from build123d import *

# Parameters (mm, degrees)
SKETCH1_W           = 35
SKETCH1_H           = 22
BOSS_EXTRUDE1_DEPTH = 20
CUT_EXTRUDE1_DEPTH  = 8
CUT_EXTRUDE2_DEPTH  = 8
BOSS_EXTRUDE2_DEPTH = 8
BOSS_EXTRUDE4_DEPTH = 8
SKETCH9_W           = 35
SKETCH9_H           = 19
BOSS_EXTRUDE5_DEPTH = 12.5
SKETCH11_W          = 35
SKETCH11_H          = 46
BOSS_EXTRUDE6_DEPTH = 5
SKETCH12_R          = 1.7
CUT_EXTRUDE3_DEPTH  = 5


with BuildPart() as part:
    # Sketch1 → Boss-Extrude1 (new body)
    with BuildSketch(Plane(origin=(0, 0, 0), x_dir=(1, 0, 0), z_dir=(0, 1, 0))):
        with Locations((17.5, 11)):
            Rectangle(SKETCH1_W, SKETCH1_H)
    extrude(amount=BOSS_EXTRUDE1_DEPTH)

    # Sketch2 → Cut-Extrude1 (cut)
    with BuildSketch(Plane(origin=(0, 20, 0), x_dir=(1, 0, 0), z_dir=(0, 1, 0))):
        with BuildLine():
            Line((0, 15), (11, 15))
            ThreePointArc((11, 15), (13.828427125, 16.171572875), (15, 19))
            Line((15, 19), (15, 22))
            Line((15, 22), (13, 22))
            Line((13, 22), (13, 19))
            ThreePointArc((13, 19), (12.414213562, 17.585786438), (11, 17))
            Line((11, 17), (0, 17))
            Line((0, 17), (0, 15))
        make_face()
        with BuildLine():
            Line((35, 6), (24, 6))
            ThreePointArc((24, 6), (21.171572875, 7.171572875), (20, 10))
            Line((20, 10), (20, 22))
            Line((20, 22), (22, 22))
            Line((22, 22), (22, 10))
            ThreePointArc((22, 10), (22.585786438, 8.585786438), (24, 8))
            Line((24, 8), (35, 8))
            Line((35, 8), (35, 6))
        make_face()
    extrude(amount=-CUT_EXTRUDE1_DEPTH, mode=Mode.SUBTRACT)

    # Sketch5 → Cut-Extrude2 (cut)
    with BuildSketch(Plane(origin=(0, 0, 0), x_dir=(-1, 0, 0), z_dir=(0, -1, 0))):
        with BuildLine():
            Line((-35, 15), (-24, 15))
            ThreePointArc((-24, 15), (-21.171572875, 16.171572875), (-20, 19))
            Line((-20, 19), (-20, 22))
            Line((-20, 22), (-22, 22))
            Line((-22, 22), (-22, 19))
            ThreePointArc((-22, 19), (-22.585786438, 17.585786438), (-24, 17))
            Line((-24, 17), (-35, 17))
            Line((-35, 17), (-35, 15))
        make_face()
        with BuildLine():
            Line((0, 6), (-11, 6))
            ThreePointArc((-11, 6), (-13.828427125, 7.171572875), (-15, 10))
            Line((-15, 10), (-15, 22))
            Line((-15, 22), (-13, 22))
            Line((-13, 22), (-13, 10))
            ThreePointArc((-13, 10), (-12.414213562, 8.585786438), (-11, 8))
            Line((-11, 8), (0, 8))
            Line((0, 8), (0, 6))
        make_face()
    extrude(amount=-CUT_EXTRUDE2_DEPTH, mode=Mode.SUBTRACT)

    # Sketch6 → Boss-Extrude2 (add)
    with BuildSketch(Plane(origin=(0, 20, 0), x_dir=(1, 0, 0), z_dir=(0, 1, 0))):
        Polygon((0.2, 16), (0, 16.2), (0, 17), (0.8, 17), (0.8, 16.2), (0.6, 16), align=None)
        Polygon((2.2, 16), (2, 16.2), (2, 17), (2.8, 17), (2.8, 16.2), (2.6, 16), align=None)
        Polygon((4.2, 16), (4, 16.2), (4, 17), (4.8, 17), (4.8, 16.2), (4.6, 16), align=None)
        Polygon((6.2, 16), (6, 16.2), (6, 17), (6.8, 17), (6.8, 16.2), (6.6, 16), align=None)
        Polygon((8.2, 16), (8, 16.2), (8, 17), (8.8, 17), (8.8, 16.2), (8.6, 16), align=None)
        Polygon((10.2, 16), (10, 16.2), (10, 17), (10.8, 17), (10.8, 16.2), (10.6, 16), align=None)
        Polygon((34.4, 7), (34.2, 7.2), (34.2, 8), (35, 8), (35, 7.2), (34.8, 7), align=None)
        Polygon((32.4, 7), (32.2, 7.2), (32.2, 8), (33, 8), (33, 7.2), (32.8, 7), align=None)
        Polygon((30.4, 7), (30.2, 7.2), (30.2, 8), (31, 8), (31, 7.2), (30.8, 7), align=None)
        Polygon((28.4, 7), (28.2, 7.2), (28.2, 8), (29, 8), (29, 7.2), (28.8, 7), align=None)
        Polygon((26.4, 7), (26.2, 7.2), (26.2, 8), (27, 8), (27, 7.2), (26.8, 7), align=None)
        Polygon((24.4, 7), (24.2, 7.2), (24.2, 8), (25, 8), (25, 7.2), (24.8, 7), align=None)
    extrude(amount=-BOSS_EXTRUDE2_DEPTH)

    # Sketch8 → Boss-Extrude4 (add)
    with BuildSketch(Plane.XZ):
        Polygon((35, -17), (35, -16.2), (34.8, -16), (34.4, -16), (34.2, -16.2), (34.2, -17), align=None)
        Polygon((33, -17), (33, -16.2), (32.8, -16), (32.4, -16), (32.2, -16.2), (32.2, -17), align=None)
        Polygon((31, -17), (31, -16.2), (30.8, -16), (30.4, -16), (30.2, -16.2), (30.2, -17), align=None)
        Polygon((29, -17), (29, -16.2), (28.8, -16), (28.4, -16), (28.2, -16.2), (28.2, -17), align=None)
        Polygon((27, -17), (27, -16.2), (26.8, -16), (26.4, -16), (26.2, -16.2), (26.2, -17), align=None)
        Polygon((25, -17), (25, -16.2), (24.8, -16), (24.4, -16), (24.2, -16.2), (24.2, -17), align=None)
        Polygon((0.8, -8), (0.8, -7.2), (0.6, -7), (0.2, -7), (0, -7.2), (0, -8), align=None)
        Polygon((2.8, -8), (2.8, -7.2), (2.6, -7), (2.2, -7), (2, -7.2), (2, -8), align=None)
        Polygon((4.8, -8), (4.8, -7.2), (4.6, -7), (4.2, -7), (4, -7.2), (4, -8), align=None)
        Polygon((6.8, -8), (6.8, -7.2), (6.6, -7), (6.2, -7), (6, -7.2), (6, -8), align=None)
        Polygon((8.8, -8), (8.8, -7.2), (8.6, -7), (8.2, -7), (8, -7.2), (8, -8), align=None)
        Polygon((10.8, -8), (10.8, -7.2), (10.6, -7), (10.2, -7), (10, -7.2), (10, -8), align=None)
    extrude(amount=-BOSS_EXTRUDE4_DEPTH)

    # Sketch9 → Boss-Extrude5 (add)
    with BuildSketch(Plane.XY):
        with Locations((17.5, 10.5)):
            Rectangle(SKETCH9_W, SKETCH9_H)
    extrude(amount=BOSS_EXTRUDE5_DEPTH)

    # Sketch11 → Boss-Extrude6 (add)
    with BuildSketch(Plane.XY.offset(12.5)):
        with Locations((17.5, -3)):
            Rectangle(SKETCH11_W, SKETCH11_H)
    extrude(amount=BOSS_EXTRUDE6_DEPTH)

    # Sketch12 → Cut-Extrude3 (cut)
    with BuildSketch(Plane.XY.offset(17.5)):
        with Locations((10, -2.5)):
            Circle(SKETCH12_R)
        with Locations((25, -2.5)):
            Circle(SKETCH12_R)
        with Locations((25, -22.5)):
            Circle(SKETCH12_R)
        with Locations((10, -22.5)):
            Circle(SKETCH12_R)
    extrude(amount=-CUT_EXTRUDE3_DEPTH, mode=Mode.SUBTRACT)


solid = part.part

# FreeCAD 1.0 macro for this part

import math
import FreeCAD as App
import Part
import Sketcher

doc = App.newDocument("Part")
params = doc.addObject("Spreadsheet::Sheet", "Params")
for row, (alias, value) in enumerate([
    ("sketch1_width", "35 mm"),
    ("sketch1_height", "22 mm"),
    ("pad1_length", "20 mm"),
    ("sketch2_radius", "4 mm"),
    ("sketch2_radius2", "2 mm"),
    ("sketch2_width", "11 mm"),
    ("sketch2_height", "3 mm"),
    ("sketch2_height2", "12 mm"),
    ("pocket1_length", "8 mm"),
    ("sketch3_radius", "4 mm"),
    ("sketch3_radius2", "2 mm"),
    ("sketch3_width", "11 mm"),
    ("sketch3_height", "3 mm"),
    ("sketch3_height2", "12 mm"),
    ("pocket2_length", "8 mm"),
    ("sketch4_width", "0.4 mm"),
    ("sketch4_width2", "0.8 mm"),
    ("pad2_length", "8 mm"),
    ("sketch5_width", "0.4 mm"),
    ("sketch5_width2", "0.8 mm"),
    ("pad3_length", "8 mm"),
    ("sketch6_width", "35 mm"),
    ("sketch6_height", "19 mm"),
    ("pad4_length", "12.5 mm"),
    ("sketch7_width", "35 mm"),
    ("sketch7_height", "46 mm"),
    ("pad5_length", "5 mm"),
    ("sketch8_diameter", "3.4 mm"),
    ("pocket3_length", "5 mm"),
], start=1):
    params.set(f"A{row}", alias)
    params.set(f"B{row}", "=" + value)
    params.setAlias(f"B{row}", alias)

body = doc.addObject("PartDesign::Body", "Body")

# Sketch on XZ plane
sketch1 = body.newObject("Sketcher::SketchObject", "Sketch")
sketch1.AttachmentSupport = (doc.getObject("XZ_Plane"), [""])
sketch1.MapMode = "FlatFace"
sketch1.addGeometry([
    Part.LineSegment(App.Vector(0, -22, 0), App.Vector(0, 0, 0)),
    Part.LineSegment(App.Vector(0, 0, 0), App.Vector(35, 0, 0)),
    Part.LineSegment(App.Vector(35, 0, 0), App.Vector(35, -22, 0)),
    Part.LineSegment(App.Vector(35, -22, 0), App.Vector(0, -22, 0)),
], False)
sketch1.addConstraint([
    Sketcher.Constraint("Coincident", 0, 2, 1, 1),
    Sketcher.Constraint("Coincident", 1, 2, 2, 1),
    Sketcher.Constraint("Coincident", 2, 2, 3, 1),
    Sketcher.Constraint("Coincident", 3, 2, 0, 1),
    Sketcher.Constraint("Vertical", 0),
    Sketcher.Constraint("Horizontal", 1),
    Sketcher.Constraint("Vertical", 2),
    Sketcher.Constraint("Horizontal", 3),
    Sketcher.Constraint("Coincident", 0, 2, -1, 1),
    Sketcher.Constraint("DistanceX", 1, 1, 1, 2, 35.0),
    Sketcher.Constraint("DistanceY", 0, 1, 0, 2, 22.0),
])
sketch1.setExpression("Constraints[9]", "Params.sketch1_width")
sketch1.setExpression("Constraints[10]", "Params.sketch1_height")
pad1 = body.newObject("PartDesign::Pad", "Pad")
pad1.Profile = sketch1
pad1.setExpression("Length", "Params.pad1_length")
pad1.Reversed = True

# Sketch on XZ plane
sketch2 = body.newObject("Sketcher::SketchObject", "Sketch001")
sketch2.AttachmentSupport = (doc.getObject("XZ_Plane"), [""])
sketch2.MapMode = "FlatFace"
sketch2.AttachmentOffset = App.Placement(App.Vector(0, 0, -20), App.Rotation())
sketch2.addGeometry([
    Part.LineSegment(App.Vector(0, -15, 0), App.Vector(11, -15, 0)),  # 0
    Part.ArcOfCircle(Part.Circle(App.Vector(11, -19, 0), App.Vector(0, 0, 1), 4), math.radians(0), math.radians(90)),  # 1
    Part.LineSegment(App.Vector(15, -19, 0), App.Vector(15, -22, 0)),  # 2
    Part.LineSegment(App.Vector(15, -22, 0), App.Vector(13, -22, 0)),  # 3
    Part.LineSegment(App.Vector(13, -22, 0), App.Vector(13, -19, 0)),  # 4
    Part.ArcOfCircle(Part.Circle(App.Vector(11, -19, 0), App.Vector(0, 0, 1), 2), math.radians(0), math.radians(90)),  # 5
    Part.LineSegment(App.Vector(11, -17, 0), App.Vector(0, -17, 0)),  # 6
    Part.LineSegment(App.Vector(0, -17, 0), App.Vector(0, -15, 0)),  # 7
    Part.LineSegment(App.Vector(24, -6, 0), App.Vector(35, -6, 0)),  # 8
    Part.LineSegment(App.Vector(35, -6, 0), App.Vector(35, -8, 0)),  # 9
    Part.LineSegment(App.Vector(35, -8, 0), App.Vector(24, -8, 0)),  # 10
    Part.ArcOfCircle(Part.Circle(App.Vector(24, -10, 0), App.Vector(0, 0, 1), 2), math.radians(90), math.radians(180)),  # 11
    Part.LineSegment(App.Vector(22, -10, 0), App.Vector(22, -22, 0)),  # 12
    Part.LineSegment(App.Vector(22, -22, 0), App.Vector(20, -22, 0)),  # 13
    Part.LineSegment(App.Vector(20, -22, 0), App.Vector(20, -10, 0)),  # 14
    Part.ArcOfCircle(Part.Circle(App.Vector(24, -10, 0), App.Vector(0, 0, 1), 4), math.radians(90), math.radians(180)),  # 15
], False)
sketch2.addConstraint([
    Sketcher.Constraint("Tangent", 0, 2, 1, 2),
    Sketcher.Constraint("Tangent", 1, 1, 2, 1),
    Sketcher.Constraint("Coincident", 2, 2, 3, 1),
    Sketcher.Constraint("Coincident", 3, 2, 4, 1),
    Sketcher.Constraint("Tangent", 4, 2, 5, 1),
    Sketcher.Constraint("Tangent", 5, 2, 6, 1),
    Sketcher.Constraint("Coincident", 6, 2, 7, 1),
    Sketcher.Constraint("Coincident", 7, 2, 0, 1),
    Sketcher.Constraint("Coincident", 8, 2, 9, 1),
    Sketcher.Constraint("Coincident", 9, 2, 10, 1),
    Sketcher.Constraint("Tangent", 10, 2, 11, 1),
    Sketcher.Constraint("Tangent", 11, 2, 12, 1),
    Sketcher.Constraint("Coincident", 12, 2, 13, 1),
    Sketcher.Constraint("Coincident", 13, 2, 14, 1),
    Sketcher.Constraint("Tangent", 14, 2, 15, 2),
    Sketcher.Constraint("Tangent", 15, 1, 8, 1),
    Sketcher.Constraint("Horizontal", 0),
    Sketcher.Constraint("Vertical", 2),
    Sketcher.Constraint("Horizontal", 3),
    Sketcher.Constraint("Vertical", 4),
    Sketcher.Constraint("Horizontal", 6),
    Sketcher.Constraint("Vertical", 7),
    Sketcher.Constraint("Horizontal", 8),
    Sketcher.Constraint("Vertical", 9),
    Sketcher.Constraint("Horizontal", 10),
    Sketcher.Constraint("Vertical", 12),
    Sketcher.Constraint("Horizontal", 13),
    Sketcher.Constraint("Vertical", 14),
    Sketcher.Constraint("Coincident", 5, 3, 1, 3),
    Sketcher.Constraint("Coincident", 15, 3, 11, 3),
    Sketcher.Constraint("Equal", 5, 11),
    Sketcher.Constraint("Equal", 1, 15),
    Sketcher.Constraint("PointOnObject", 6, 2, -2),
    Sketcher.Constraint("Horizontal", 3, 2, 12, 2),
    Sketcher.Constraint("Equal", 6, 8),
    Sketcher.Constraint("Radius", 1, 4.0),
    Sketcher.Constraint("Radius", 5, 2.0),
    Sketcher.Constraint("DistanceX", 0, 1, 0, 2, 11.0),
    Sketcher.Constraint("DistanceY", 2, 2, 2, 1, 3.0),
    Sketcher.Constraint("DistanceY", 12, 2, 12, 1, 12.0),
    Sketcher.Constraint("DistanceY", 1, 3, -1, 1, 19.0),
    Sketcher.Constraint("DistanceX", -1, 1, 11, 3, 24.0),
])
sketch2.setExpression("Constraints[35]", "Params.sketch2_radius")
sketch2.setExpression("Constraints[36]", "Params.sketch2_radius2")
sketch2.setExpression("Constraints[37]", "Params.sketch2_width")
sketch2.setExpression("Constraints[38]", "Params.sketch2_height")
sketch2.setExpression("Constraints[39]", "Params.sketch2_height2")
pocket1 = body.newObject("PartDesign::Pocket", "Pocket")
pocket1.Profile = sketch2
pocket1.setExpression("Length", "Params.pocket1_length")
pocket1.Reversed = True

# Sketch on XZ plane
sketch3 = body.newObject("Sketcher::SketchObject", "Sketch002")
sketch3.AttachmentSupport = (doc.getObject("XZ_Plane"), [""])
sketch3.MapMode = "FlatFace"
sketch3.addGeometry([
    Part.LineSegment(App.Vector(35, -15, 0), App.Vector(24, -15, 0)),  # 0
    Part.ArcOfCircle(Part.Circle(App.Vector(24, -19, 0), App.Vector(0, 0, 1), 4), math.radians(90), math.radians(180)),  # 1
    Part.LineSegment(App.Vector(20, -19, 0), App.Vector(20, -22, 0)),  # 2
    Part.LineSegment(App.Vector(20, -22, 0), App.Vector(22, -22, 0)),  # 3
    Part.LineSegment(App.Vector(22, -22, 0), App.Vector(22, -19, 0)),  # 4
    Part.ArcOfCircle(Part.Circle(App.Vector(24, -19, 0), App.Vector(0, 0, 1), 2), math.radians(90), math.radians(180)),  # 5
    Part.LineSegment(App.Vector(24, -17, 0), App.Vector(35, -17, 0)),  # 6
    Part.LineSegment(App.Vector(35, -17, 0), App.Vector(35, -15, 0)),  # 7
    Part.LineSegment(App.Vector(11, -6, 0), App.Vector(0, -6, 0)),  # 8
    Part.LineSegment(App.Vector(0, -6, 0), App.Vector(0, -8, 0)),  # 9
    Part.LineSegment(App.Vector(0, -8, 0), App.Vector(11, -8, 0)),  # 10
    Part.ArcOfCircle(Part.Circle(App.Vector(11, -10, 0), App.Vector(0, 0, 1), 2), math.radians(0), math.radians(90)),  # 11
    Part.LineSegment(App.Vector(13, -10, 0), App.Vector(13, -22, 0)),  # 12
    Part.LineSegment(App.Vector(13, -22, 0), App.Vector(15, -22, 0)),  # 13
    Part.LineSegment(App.Vector(15, -22, 0), App.Vector(15, -10, 0)),  # 14
    Part.ArcOfCircle(Part.Circle(App.Vector(11, -10, 0), App.Vector(0, 0, 1), 4), math.radians(0), math.radians(90)),  # 15
], False)
sketch3.addConstraint([
    Sketcher.Constraint("Tangent", 0, 2, 1, 1),
    Sketcher.Constraint("Tangent", 1, 2, 2, 1),
    Sketcher.Constraint("Coincident", 2, 2, 3, 1),
    Sketcher.Constraint("Coincident", 3, 2, 4, 1),
    Sketcher.Constraint("Tangent", 4, 2, 5, 2),
    Sketcher.Constraint("Tangent", 5, 1, 6, 1),
    Sketcher.Constraint("Coincident", 6, 2, 7, 1),
    Sketcher.Constraint("Coincident", 7, 2, 0, 1),
    Sketcher.Constraint("Coincident", 8, 2, 9, 1),
    Sketcher.Constraint("Coincident", 9, 2, 10, 1),
    Sketcher.Constraint("Tangent", 10, 2, 11, 2),
    Sketcher.Constraint("Tangent", 11, 1, 12, 1),
    Sketcher.Constraint("Coincident", 12, 2, 13, 1),
    Sketcher.Constraint("Coincident", 13, 2, 14, 1),
    Sketcher.Constraint("Tangent", 14, 2, 15, 1),
    Sketcher.Constraint("Tangent", 15, 2, 8, 1),
    Sketcher.Constraint("Horizontal", 0),
    Sketcher.Constraint("Vertical", 2),
    Sketcher.Constraint("Horizontal", 3),
    Sketcher.Constraint("Vertical", 4),
    Sketcher.Constraint("Horizontal", 6),
    Sketcher.Constraint("Vertical", 7),
    Sketcher.Constraint("Horizontal", 8),
    Sketcher.Constraint("Vertical", 9),
    Sketcher.Constraint("Horizontal", 10),
    Sketcher.Constraint("Vertical", 12),
    Sketcher.Constraint("Horizontal", 13),
    Sketcher.Constraint("Vertical", 14),
    Sketcher.Constraint("Coincident", 5, 3, 1, 3),
    Sketcher.Constraint("Coincident", 15, 3, 11, 3),
    Sketcher.Constraint("Equal", 5, 11),
    Sketcher.Constraint("Equal", 1, 15),
    Sketcher.Constraint("PointOnObject", 8, 2, -2),
    Sketcher.Constraint("Horizontal", 3, 2, 12, 2),
    Sketcher.Constraint("Equal", 6, 8),
    Sketcher.Constraint("Radius", 1, 4.0),
    Sketcher.Constraint("Radius", 5, 2.0),
    Sketcher.Constraint("DistanceX", 0, 2, 0, 1, 11.0),
    Sketcher.Constraint("DistanceY", 2, 2, 2, 1, 3.0),
    Sketcher.Constraint("DistanceY", 12, 2, 12, 1, 12.0),
    Sketcher.Constraint("DistanceX", -1, 1, 1, 3, 24.0),
    Sketcher.Constraint("DistanceY", 1, 3, -1, 1, 19.0),
])
sketch3.setExpression("Constraints[35]", "Params.sketch3_radius")
sketch3.setExpression("Constraints[36]", "Params.sketch3_radius2")
sketch3.setExpression("Constraints[37]", "Params.sketch3_width")
sketch3.setExpression("Constraints[38]", "Params.sketch3_height")
sketch3.setExpression("Constraints[39]", "Params.sketch3_height2")
pocket2 = body.newObject("PartDesign::Pocket", "Pocket001")
pocket2.Profile = sketch3
pocket2.setExpression("Length", "Params.pocket2_length")

# Sketch on XZ plane
sketch4 = body.newObject("Sketcher::SketchObject", "Sketch003")
sketch4.AttachmentSupport = (doc.getObject("XZ_Plane"), [""])
sketch4.MapMode = "FlatFace"
sketch4.AttachmentOffset = App.Placement(App.Vector(0, 0, -20), App.Rotation())
sketch4.addGeometry([
    Part.LineSegment(App.Vector(0, -16.2, 0), App.Vector(0.2, -16, 0)),  # 0
    Part.LineSegment(App.Vector(0.2, -16, 0), App.Vector(0.6, -16, 0)),  # 1
    Part.LineSegment(App.Vector(0.6, -16, 0), App.Vector(0.8, -16.2, 0)),  # 2
    Part.LineSegment(App.Vector(0.8, -16.2, 0), App.Vector(0.8, -17, 0)),  # 3
    Part.LineSegment(App.Vector(0.8, -17, 0), App.Vector(0, -17, 0)),  # 4
    Part.LineSegment(App.Vector(0, -17, 0), App.Vector(0, -16.2, 0)),  # 5
    Part.LineSegment(App.Vector(2, -16.2, 0), App.Vector(2.2, -16, 0)),  # 6
    Part.LineSegment(App.Vector(2.2, -16, 0), App.Vector(2.6, -16, 0)),  # 7
    Part.LineSegment(App.Vector(2.6, -16, 0), App.Vector(2.8, -16.2, 0)),  # 8
    Part.LineSegment(App.Vector(2.8, -16.2, 0), App.Vector(2.8, -17, 0)),  # 9
    Part.LineSegment(App.Vector(2.8, -17, 0), App.Vector(2, -17, 0)),  # 10
    Part.LineSegment(App.Vector(2, -17, 0), App.Vector(2, -16.2, 0)),  # 11
    Part.LineSegment(App.Vector(4, -16.2, 0), App.Vector(4.2, -16, 0)),  # 12
    Part.LineSegment(App.Vector(4.2, -16, 0), App.Vector(4.6, -16, 0)),  # 13
    Part.LineSegment(App.Vector(4.6, -16, 0), App.Vector(4.8, -16.2, 0)),  # 14
    Part.LineSegment(App.Vector(4.8, -16.2, 0), App.Vector(4.8, -17, 0)),  # 15
    Part.LineSegment(App.Vector(4.8, -17, 0), App.Vector(4, -17, 0)),  # 16
    Part.LineSegment(App.Vector(4, -17, 0), App.Vector(4, -16.2, 0)),  # 17
    Part.LineSegment(App.Vector(6, -16.2, 0), App.Vector(6.2, -16, 0)),  # 18
    Part.LineSegment(App.Vector(6.2, -16, 0), App.Vector(6.6, -16, 0)),  # 19
    Part.LineSegment(App.Vector(6.6, -16, 0), App.Vector(6.8, -16.2, 0)),  # 20
    Part.LineSegment(App.Vector(6.8, -16.2, 0), App.Vector(6.8, -17, 0)),  # 21
    Part.LineSegment(App.Vector(6.8, -17, 0), App.Vector(6, -17, 0)),  # 22
    Part.LineSegment(App.Vector(6, -17, 0), App.Vector(6, -16.2, 0)),  # 23
    Part.LineSegment(App.Vector(8, -16.2, 0), App.Vector(8.2, -16, 0)),  # 24
    Part.LineSegment(App.Vector(8.2, -16, 0), App.Vector(8.6, -16, 0)),  # 25
    Part.LineSegment(App.Vector(8.6, -16, 0), App.Vector(8.8, -16.2, 0)),  # 26
    Part.LineSegment(App.Vector(8.8, -16.2, 0), App.Vector(8.8, -17, 0)),  # 27
    Part.LineSegment(App.Vector(8.8, -17, 0), App.Vector(8, -17, 0)),  # 28
    Part.LineSegment(App.Vector(8, -17, 0), App.Vector(8, -16.2, 0)),  # 29
    Part.LineSegment(App.Vector(10, -16.2, 0), App.Vector(10.2, -16, 0)),  # 30
    Part.LineSegment(App.Vector(10.2, -16, 0), App.Vector(10.6, -16, 0)),  # 31
    Part.LineSegment(App.Vector(10.6, -16, 0), App.Vector(10.8, -16.2, 0)),  # 32
    Part.LineSegment(App.Vector(10.8, -16.2, 0), App.Vector(10.8, -17, 0)),  # 33
    Part.LineSegment(App.Vector(10.8, -17, 0), App.Vector(10, -17, 0)),  # 34
    Part.LineSegment(App.Vector(10, -17, 0), App.Vector(10, -16.2, 0)),  # 35
    Part.LineSegment(App.Vector(34.2, -7.2, 0), App.Vector(34.4, -7, 0)),  # 36
    Part.LineSegment(App.Vector(34.4, -7, 0), App.Vector(34.8, -7, 0)),  # 37
    Part.LineSegment(App.Vector(34.8, -7, 0), App.Vector(35, -7.2, 0)),  # 38
    Part.LineSegment(App.Vector(35, -7.2, 0), App.Vector(35, -8, 0)),  # 39
    Part.LineSegment(App.Vector(35, -8, 0), App.Vector(34.2, -8, 0)),  # 40
    Part.LineSegment(App.Vector(34.2, -8, 0), App.Vector(34.2, -7.2, 0)),  # 41
    Part.LineSegment(App.Vector(32.2, -7.2, 0), App.Vector(32.4, -7, 0)),  # 42
    Part.LineSegment(App.Vector(32.4, -7, 0), App.Vector(32.8, -7, 0)),  # 43
    Part.LineSegment(App.Vector(32.8, -7, 0), App.Vector(33, -7.2, 0)),  # 44
    Part.LineSegment(App.Vector(33, -7.2, 0), App.Vector(33, -8, 0)),  # 45
    Part.LineSegment(App.Vector(33, -8, 0), App.Vector(32.2, -8, 0)),  # 46
    Part.LineSegment(App.Vector(32.2, -8, 0), App.Vector(32.2, -7.2, 0)),  # 47
    Part.LineSegment(App.Vector(30.2, -7.2, 0), App.Vector(30.4, -7, 0)),  # 48
    Part.LineSegment(App.Vector(30.4, -7, 0), App.Vector(30.8, -7, 0)),  # 49
    Part.LineSegment(App.Vector(30.8, -7, 0), App.Vector(31, -7.2, 0)),  # 50
    Part.LineSegment(App.Vector(31, -7.2, 0), App.Vector(31, -8, 0)),  # 51
    Part.LineSegment(App.Vector(31, -8, 0), App.Vector(30.2, -8, 0)),  # 52
    Part.LineSegment(App.Vector(30.2, -8, 0), App.Vector(30.2, -7.2, 0)),  # 53
    Part.LineSegment(App.Vector(28.2, -7.2, 0), App.Vector(28.4, -7, 0)),  # 54
    Part.LineSegment(App.Vector(28.4, -7, 0), App.Vector(28.8, -7, 0)),  # 55
    Part.LineSegment(App.Vector(28.8, -7, 0), App.Vector(29, -7.2, 0)),  # 56
    Part.LineSegment(App.Vector(29, -7.2, 0), App.Vector(29, -8, 0)),  # 57
    Part.LineSegment(App.Vector(29, -8, 0), App.Vector(28.2, -8, 0)),  # 58
    Part.LineSegment(App.Vector(28.2, -8, 0), App.Vector(28.2, -7.2, 0)),  # 59
    Part.LineSegment(App.Vector(26.2, -7.2, 0), App.Vector(26.4, -7, 0)),  # 60
    Part.LineSegment(App.Vector(26.4, -7, 0), App.Vector(26.8, -7, 0)),  # 61
    Part.LineSegment(App.Vector(26.8, -7, 0), App.Vector(27, -7.2, 0)),  # 62
    Part.LineSegment(App.Vector(27, -7.2, 0), App.Vector(27, -8, 0)),  # 63
    Part.LineSegment(App.Vector(27, -8, 0), App.Vector(26.2, -8, 0)),  # 64
    Part.LineSegment(App.Vector(26.2, -8, 0), App.Vector(26.2, -7.2, 0)),  # 65
    Part.LineSegment(App.Vector(24.2, -7.2, 0), App.Vector(24.4, -7, 0)),  # 66
    Part.LineSegment(App.Vector(24.4, -7, 0), App.Vector(24.8, -7, 0)),  # 67
    Part.LineSegment(App.Vector(24.8, -7, 0), App.Vector(25, -7.2, 0)),  # 68
    Part.LineSegment(App.Vector(25, -7.2, 0), App.Vector(25, -8, 0)),  # 69
    Part.LineSegment(App.Vector(25, -8, 0), App.Vector(24.2, -8, 0)),  # 70
    Part.LineSegment(App.Vector(24.2, -8, 0), App.Vector(24.2, -7.2, 0)),  # 71
], False)
sketch4.addConstraint([
    Sketcher.Constraint("Coincident", 0, 2, 1, 1),
    Sketcher.Constraint("Coincident", 1, 2, 2, 1),
    Sketcher.Constraint("Coincident", 2, 2, 3, 1),
    Sketcher.Constraint("Coincident", 3, 2, 4, 1),
    Sketcher.Constraint("Coincident", 4, 2, 5, 1),
    Sketcher.Constraint("Coincident", 5, 2, 0, 1),
    Sketcher.Constraint("Coincident", 6, 2, 7, 1),
    Sketcher.Constraint("Coincident", 7, 2, 8, 1),
    Sketcher.Constraint("Coincident", 8, 2, 9, 1),
    Sketcher.Constraint("Coincident", 9, 2, 10, 1),
    Sketcher.Constraint("Coincident", 10, 2, 11, 1),
    Sketcher.Constraint("Coincident", 11, 2, 6, 1),
    Sketcher.Constraint("Coincident", 12, 2, 13, 1),
    Sketcher.Constraint("Coincident", 13, 2, 14, 1),
    Sketcher.Constraint("Coincident", 14, 2, 15, 1),
    Sketcher.Constraint("Coincident", 15, 2, 16, 1),
    Sketcher.Constraint("Coincident", 16, 2, 17, 1),
    Sketcher.Constraint("Coincident", 17, 2, 12, 1),
    Sketcher.Constraint("Coincident", 18, 2, 19, 1),
    Sketcher.Constraint("Coincident", 19, 2, 20, 1),
    Sketcher.Constraint("Coincident", 20, 2, 21, 1),
    Sketcher.Constraint("Coincident", 21, 2, 22, 1),
    Sketcher.Constraint("Coincident", 22, 2, 23, 1),
    Sketcher.Constraint("Coincident", 23, 2, 18, 1),
    Sketcher.Constraint("Coincident", 24, 2, 25, 1),
    Sketcher.Constraint("Coincident", 25, 2, 26, 1),
    Sketcher.Constraint("Coincident", 26, 2, 27, 1),
    Sketcher.Constraint("Coincident", 27, 2, 28, 1),
    Sketcher.Constraint("Coincident", 28, 2, 29, 1),
    Sketcher.Constraint("Coincident", 29, 2, 24, 1),
    Sketcher.Constraint("Coincident", 30, 2, 31, 1),
    Sketcher.Constraint("Coincident", 31, 2, 32, 1),
    Sketcher.Constraint("Coincident", 32, 2, 33, 1),
    Sketcher.Constraint("Coincident", 33, 2, 34, 1),
    Sketcher.Constraint("Coincident", 34, 2, 35, 1),
    Sketcher.Constraint("Coincident", 35, 2, 30, 1),
    Sketcher.Constraint("Coincident", 36, 2, 37, 1),
    Sketcher.Constraint("Coincident", 37, 2, 38, 1),
    Sketcher.Constraint("Coincident", 38, 2, 39, 1),
    Sketcher.Constraint("Coincident", 39, 2, 40, 1),
    Sketcher.Constraint("Coincident", 40, 2, 41, 1),
    Sketcher.Constraint("Coincident", 41, 2, 36, 1),
    Sketcher.Constraint("Coincident", 42, 2, 43, 1),
    Sketcher.Constraint("Coincident", 43, 2, 44, 1),
    Sketcher.Constraint("Coincident", 44, 2, 45, 1),
    Sketcher.Constraint("Coincident", 45, 2, 46, 1),
    Sketcher.Constraint("Coincident", 46, 2, 47, 1),
    Sketcher.Constraint("Coincident", 47, 2, 42, 1),
    Sketcher.Constraint("Coincident", 48, 2, 49, 1),
    Sketcher.Constraint("Coincident", 49, 2, 50, 1),
    Sketcher.Constraint("Coincident", 50, 2, 51, 1),
    Sketcher.Constraint("Coincident", 51, 2, 52, 1),
    Sketcher.Constraint("Coincident", 52, 2, 53, 1),
    Sketcher.Constraint("Coincident", 53, 2, 48, 1),
    Sketcher.Constraint("Coincident", 54, 2, 55, 1),
    Sketcher.Constraint("Coincident", 55, 2, 56, 1),
    Sketcher.Constraint("Coincident", 56, 2, 57, 1),
    Sketcher.Constraint("Coincident", 57, 2, 58, 1),
    Sketcher.Constraint("Coincident", 58, 2, 59, 1),
    Sketcher.Constraint("Coincident", 59, 2, 54, 1),
    Sketcher.Constraint("Coincident", 60, 2, 61, 1),
    Sketcher.Constraint("Coincident", 61, 2, 62, 1),
    Sketcher.Constraint("Coincident", 62, 2, 63, 1),
    Sketcher.Constraint("Coincident", 63, 2, 64, 1),
    Sketcher.Constraint("Coincident", 64, 2, 65, 1),
    Sketcher.Constraint("Coincident", 65, 2, 60, 1),
    Sketcher.Constraint("Coincident", 66, 2, 67, 1),
    Sketcher.Constraint("Coincident", 67, 2, 68, 1),
    Sketcher.Constraint("Coincident", 68, 2, 69, 1),
    Sketcher.Constraint("Coincident", 69, 2, 70, 1),
    Sketcher.Constraint("Coincident", 70, 2, 71, 1),
    Sketcher.Constraint("Coincident", 71, 2, 66, 1),
    Sketcher.Constraint("Horizontal", 1),
    Sketcher.Constraint("Vertical", 3),
    Sketcher.Constraint("Horizontal", 4),
    Sketcher.Constraint("Vertical", 5),
    Sketcher.Constraint("Horizontal", 7),
    Sketcher.Constraint("Vertical", 9),
    Sketcher.Constraint("Horizontal", 10),
    Sketcher.Constraint("Vertical", 11),
    Sketcher.Constraint("Horizontal", 13),
    Sketcher.Constraint("Vertical", 15),
    Sketcher.Constraint("Horizontal", 16),
    Sketcher.Constraint("Vertical", 17),
    Sketcher.Constraint("Horizontal", 19),
    Sketcher.Constraint("Vertical", 21),
    Sketcher.Constraint("Horizontal", 22),
    Sketcher.Constraint("Vertical", 23),
    Sketcher.Constraint("Horizontal", 25),
    Sketcher.Constraint("Vertical", 27),
    Sketcher.Constraint("Horizontal", 28),
    Sketcher.Constraint("Vertical", 29),
    Sketcher.Constraint("Horizontal", 31),
    Sketcher.Constraint("Vertical", 33),
    Sketcher.Constraint("Horizontal", 34),
    Sketcher.Constraint("Vertical", 35),
    Sketcher.Constraint("Horizontal", 37),
    Sketcher.Constraint("Vertical", 39),
    Sketcher.Constraint("Horizontal", 40),
    Sketcher.Constraint("Vertical", 41),
    Sketcher.Constraint("Horizontal", 43),
    Sketcher.Constraint("Vertical", 45),
    Sketcher.Constraint("Horizontal", 46),
    Sketcher.Constraint("Vertical", 47),
    Sketcher.Constraint("Horizontal", 49),
    Sketcher.Constraint("Vertical", 51),
    Sketcher.Constraint("Horizontal", 52),
    Sketcher.Constraint("Vertical", 53),
    Sketcher.Constraint("Horizontal", 55),
    Sketcher.Constraint("Vertical", 57),
    Sketcher.Constraint("Horizontal", 58),
    Sketcher.Constraint("Vertical", 59),
    Sketcher.Constraint("Horizontal", 61),
    Sketcher.Constraint("Vertical", 63),
    Sketcher.Constraint("Horizontal", 64),
    Sketcher.Constraint("Vertical", 65),
    Sketcher.Constraint("Horizontal", 67),
    Sketcher.Constraint("Vertical", 69),
    Sketcher.Constraint("Horizontal", 70),
    Sketcher.Constraint("Vertical", 71),
    Sketcher.Constraint("PointOnObject", 4, 2, -2),
    Sketcher.Constraint("Perpendicular", 0, 2),
    Sketcher.Constraint("Perpendicular", 2, 6),
    Sketcher.Constraint("Perpendicular", 6, 8),
    Sketcher.Constraint("Perpendicular", 8, 12),
    Sketcher.Constraint("Perpendicular", 12, 14),
    Sketcher.Constraint("Perpendicular", 14, 18),
    Sketcher.Constraint("Perpendicular", 18, 20),
    Sketcher.Constraint("Perpendicular", 20, 24),
    Sketcher.Constraint("Perpendicular", 24, 26),
    Sketcher.Constraint("Perpendicular", 26, 30),
    Sketcher.Constraint("Perpendicular", 30, 32),
    Sketcher.Constraint("Perpendicular", 32, 36),
    Sketcher.Constraint("Perpendicular", 36, 38),
    Sketcher.Constraint("Perpendicular", 38, 42),
    Sketcher.Constraint("Perpendicular", 42, 44),
    Sketcher.Constraint("Perpendicular", 44, 48),
    Sketcher.Constraint("Perpendicular", 48, 50),
    Sketcher.Constraint("Perpendicular", 50, 54),
    Sketcher.Constraint("Perpendicular", 54, 56),
    Sketcher.Constraint("Perpendicular", 56, 60),
    Sketcher.Constraint("Perpendicular", 60, 62),
    Sketcher.Constraint("Perpendicular", 62, 66),
    Sketcher.Constraint("Perpendicular", 66, 68),
    Sketcher.Constraint("Horizontal", 2, 2, 5, 2),
    Sketcher.Constraint("Horizontal", 1, 2, 6, 2),
    Sketcher.Constraint("Horizontal", 5, 2, 8, 2),
    Sketcher.Constraint("Horizontal", 4, 2, 9, 2),
    Sketcher.Constraint("Horizontal", 8, 2, 11, 2),
    Sketcher.Constraint("Horizontal", 7, 2, 12, 2),
    Sketcher.Constraint("Horizontal", 11, 2, 14, 2),
    Sketcher.Constraint("Horizontal", 10, 2, 15, 2),
    Sketcher.Constraint("Horizontal", 14, 2, 17, 2),
    Sketcher.Constraint("Horizontal", 13, 2, 18, 2),
    Sketcher.Constraint("Horizontal", 17, 2, 20, 2),
    Sketcher.Constraint("Horizontal", 16, 2, 21, 2),
    Sketcher.Constraint("Horizontal", 20, 2, 23, 2),
    Sketcher.Constraint("Horizontal", 19, 2, 24, 2),
    Sketcher.Constraint("Horizontal", 23, 2, 26, 2),
    Sketcher.Constraint("Horizontal", 22, 2, 27, 2),
    Sketcher.Constraint("Horizontal", 26, 2, 29, 2),
    Sketcher.Constraint("Horizontal", 25, 2, 30, 2),
    Sketcher.Constraint("Horizontal", 29, 2, 32, 2),
    Sketcher.Constraint("Horizontal", 28, 2, 33, 2),
    Sketcher.Constraint("Horizontal", 32, 2, 35, 2),
    Sketcher.Constraint("Horizontal", 38, 2, 41, 2),
    Sketcher.Constraint("Horizontal", 37, 2, 42, 2),
    Sketcher.Constraint("Horizontal", 41, 2, 44, 2),
    Sketcher.Constraint("Horizontal", 40, 2, 45, 2),
    Sketcher.Constraint("Horizontal", 44, 2, 47, 2),
    Sketcher.Constraint("Horizontal", 43, 2, 48, 2),
    Sketcher.Constraint("Horizontal", 47, 2, 50, 2),
    Sketcher.Constraint("Horizontal", 46, 2, 51, 2),
    Sketcher.Constraint("Horizontal", 50, 2, 53, 2),
    Sketcher.Constraint("Horizontal", 49, 2, 54, 2),
    Sketcher.Constraint("Horizontal", 53, 2, 56, 2),
    Sketcher.Constraint("Horizontal", 52, 2, 57, 2),
    Sketcher.Constraint("Horizontal", 56, 2, 59, 2),
    Sketcher.Constraint("Horizontal", 55, 2, 60, 2),
    Sketcher.Constraint("Horizontal", 59, 2, 62, 2),
    Sketcher.Constraint("Horizontal", 58, 2, 63, 2),
    Sketcher.Constraint("Horizontal", 62, 2, 65, 2),
    Sketcher.Constraint("Horizontal", 61, 2, 66, 2),
    Sketcher.Constraint("Horizontal", 65, 2, 68, 2),
    Sketcher.Constraint("Horizontal", 64, 2, 69, 2),
    Sketcher.Constraint("Horizontal", 68, 2, 71, 2),
    Sketcher.Constraint("Equal", 1, 7),
    Sketcher.Constraint("Equal", 7, 13),
    Sketcher.Constraint("Equal", 13, 19),
    Sketcher.Constraint("Equal", 19, 25),
    Sketcher.Constraint("Equal", 25, 31),
    Sketcher.Constraint("Equal", 31, 37),
    Sketcher.Constraint("Equal", 34, 40),
    Sketcher.Constraint("Equal", 37, 43),
    Sketcher.Constraint("Equal", 43, 49),
    Sketcher.Constraint("Equal", 49, 55),
    Sketcher.Constraint("Equal", 55, 61),
    Sketcher.Constraint("Equal", 61, 67),
    Sketcher.Constraint("Equal", 70, 3),
    Sketcher.Constraint("Equal", 35, 39),
    Sketcher.Constraint("Equal", 0, 2),
    Sketcher.Constraint("DistanceX", 1, 1, 1, 2, 0.4),
    Sketcher.Constraint("DistanceX", 4, 2, 4, 1, 0.8),
    Sketcher.Constraint("DistanceY", 0, 2, -1, 1, 16.0),
    Sketcher.Constraint("DistanceX", -1, 1, 10, 2, 2.0),
    Sketcher.Constraint("DistanceX", -1, 1, 16, 2, 4.0),
    Sketcher.Constraint("DistanceX", -1, 1, 22, 2, 6.0),
    Sketcher.Constraint("DistanceX", -1, 1, 28, 2, 8.0),
    Sketcher.Constraint("DistanceX", -1, 1, 34, 2, 10.0),
    Sketcher.Constraint("DistanceY", 36, 2, -1, 1, 7.0),
    Sketcher.Constraint("DistanceX", -1, 1, 38, 2, 35.0),
    Sketcher.Constraint("DistanceX", -1, 1, 44, 2, 33.0),
    Sketcher.Constraint("DistanceX", -1, 1, 50, 2, 31.0),
    Sketcher.Constraint("DistanceX", -1, 1, 56, 2, 29.0),
    Sketcher.Constraint("DistanceX", -1, 1, 62, 2, 27.0),
    Sketcher.Constraint("DistanceX", -1, 1, 68, 2, 25.0),
])
sketch4.setExpression("Constraints[201]", "Params.sketch4_width")
sketch4.setExpression("Constraints[202]", "Params.sketch4_width2")
pad2 = body.newObject("PartDesign::Pad", "Pad001")
pad2.Profile = sketch4
pad2.setExpression("Length", "Params.pad2_length")

# Sketch on XZ plane
sketch5 = body.newObject("Sketcher::SketchObject", "Sketch004")
sketch5.AttachmentSupport = (doc.getObject("XZ_Plane"), [""])
sketch5.MapMode = "FlatFace"
sketch5.addGeometry([
    Part.LineSegment(App.Vector(35, -17, 0), App.Vector(35, -16.2, 0)),  # 0
    Part.LineSegment(App.Vector(35, -16.2, 0), App.Vector(34.8, -16, 0)),  # 1
    Part.LineSegment(App.Vector(34.8, -16, 0), App.Vector(34.4, -16, 0)),  # 2
    Part.LineSegment(App.Vector(34.4, -16, 0), App.Vector(34.2, -16.2, 0)),  # 3
    Part.LineSegment(App.Vector(34.2, -16.2, 0), App.Vector(34.2, -17, 0)),  # 4
    Part.LineSegment(App.Vector(34.2, -17, 0), App.Vector(35, -17, 0)),  # 5
    Part.LineSegment(App.Vector(33, -17, 0), App.Vector(33, -16.2, 0)),  # 6
    Part.LineSegment(App.Vector(33, -16.2, 0), App.Vector(32.8, -16, 0)),  # 7
    Part.LineSegment(App.Vector(32.8, -16, 0), App.Vector(32.4, -16, 0)),  # 8
    Part.LineSegment(App.Vector(32.4, -16, 0), App.Vector(32.2, -16.2, 0)),  # 9
    Part.LineSegment(App.Vector(32.2, -16.2, 0), App.Vector(32.2, -17, 0)),  # 10
    Part.LineSegment(App.Vector(32.2, -17, 0), App.Vector(33, -17, 0)),  # 11
    Part.LineSegment(App.Vector(31, -17, 0), App.Vector(31, -16.2, 0)),  # 12
    Part.LineSegment(App.Vector(31, -16.2, 0), App.Vector(30.8, -16, 0)),  # 13
    Part.LineSegment(App.Vector(30.8, -16, 0), App.Vector(30.4, -16, 0)),  # 14
    Part.LineSegment(App.Vector(30.4, -16, 0), App.Vector(30.2, -16.2, 0)),  # 15
    Part.LineSegment(App.Vector(30.2, -16.2, 0), App.Vector(30.2, -17, 0)),  # 16
    Part.LineSegment(App.Vector(30.2, -17, 0), App.Vector(31, -17, 0)),  # 17
    Part.LineSegment(App.Vector(29, -17, 0), App.Vector(29, -16.2, 0)),  # 18
    Part.LineSegment(App.Vector(29, -16.2, 0), App.Vector(28.8, -16, 0)),  # 19
    Part.LineSegment(App.Vector(28.8, -16, 0), App.Vector(28.4, -16, 0)),  # 20
    Part.LineSegment(App.Vector(28.4, -16, 0), App.Vector(28.2, -16.2, 0)),  # 21
    Part.LineSegment(App.Vector(28.2, -16.2, 0), App.Vector(28.2, -17, 0)),  # 22
    Part.LineSegment(App.Vector(28.2, -17, 0), App.Vector(29, -17, 0)),  # 23
    Part.LineSegment(App.Vector(27, -17, 0), App.Vector(27, -16.2, 0)),  # 24
    Part.LineSegment(App.Vector(27, -16.2, 0), App.Vector(26.8, -16, 0)),  # 25
    Part.LineSegment(App.Vector(26.8, -16, 0), App.Vector(26.4, -16, 0)),  # 26
    Part.LineSegment(App.Vector(26.4, -16, 0), App.Vector(26.2, -16.2, 0)),  # 27
    Part.LineSegment(App.Vector(26.2, -16.2, 0), App.Vector(26.2, -17, 0)),  # 28
    Part.LineSegment(App.Vector(26.2, -17, 0), App.Vector(27, -17, 0)),  # 29
    Part.LineSegment(App.Vector(25, -17, 0), App.Vector(25, -16.2, 0)),  # 30
    Part.LineSegment(App.Vector(25, -16.2, 0), App.Vector(24.8, -16, 0)),  # 31
    Part.LineSegment(App.Vector(24.8, -16, 0), App.Vector(24.4, -16, 0)),  # 32
    Part.LineSegment(App.Vector(24.4, -16, 0), App.Vector(24.2, -16.2, 0)),  # 33
    Part.LineSegment(App.Vector(24.2, -16.2, 0), App.Vector(24.2, -17, 0)),  # 34
    Part.LineSegment(App.Vector(24.2, -17, 0), App.Vector(25, -17, 0)),  # 35
    Part.LineSegment(App.Vector(0.8, -8, 0), App.Vector(0.8, -7.2, 0)),  # 36
    Part.LineSegment(App.Vector(0.8, -7.2, 0), App.Vector(0.6, -7, 0)),  # 37
    Part.LineSegment(App.Vector(0.6, -7, 0), App.Vector(0.2, -7, 0)),  # 38
    Part.LineSegment(App.Vector(0.2, -7, 0), App.Vector(0, -7.2, 0)),  # 39
    Part.LineSegment(App.Vector(0, -7.2, 0), App.Vector(0, -8, 0)),  # 40
    Part.LineSegment(App.Vector(0, -8, 0), App.Vector(0.8, -8, 0)),  # 41
    Part.LineSegment(App.Vector(2.8, -8, 0), App.Vector(2.8, -7.2, 0)),  # 42
    Part.LineSegment(App.Vector(2.8, -7.2, 0), App.Vector(2.6, -7, 0)),  # 43
    Part.LineSegment(App.Vector(2.6, -7, 0), App.Vector(2.2, -7, 0)),  # 44
    Part.LineSegment(App.Vector(2.2, -7, 0), App.Vector(2, -7.2, 0)),  # 45
    Part.LineSegment(App.Vector(2, -7.2, 0), App.Vector(2, -8, 0)),  # 46
    Part.LineSegment(App.Vector(2, -8, 0), App.Vector(2.8, -8, 0)),  # 47
    Part.LineSegment(App.Vector(4.8, -8, 0), App.Vector(4.8, -7.2, 0)),  # 48
    Part.LineSegment(App.Vector(4.8, -7.2, 0), App.Vector(4.6, -7, 0)),  # 49
    Part.LineSegment(App.Vector(4.6, -7, 0), App.Vector(4.2, -7, 0)),  # 50
    Part.LineSegment(App.Vector(4.2, -7, 0), App.Vector(4, -7.2, 0)),  # 51
    Part.LineSegment(App.Vector(4, -7.2, 0), App.Vector(4, -8, 0)),  # 52
    Part.LineSegment(App.Vector(4, -8, 0), App.Vector(4.8, -8, 0)),  # 53
    Part.LineSegment(App.Vector(6.8, -8, 0), App.Vector(6.8, -7.2, 0)),  # 54
    Part.LineSegment(App.Vector(6.8, -7.2, 0), App.Vector(6.6, -7, 0)),  # 55
    Part.LineSegment(App.Vector(6.6, -7, 0), App.Vector(6.2, -7, 0)),  # 56
    Part.LineSegment(App.Vector(6.2, -7, 0), App.Vector(6, -7.2, 0)),  # 57
    Part.LineSegment(App.Vector(6, -7.2, 0), App.Vector(6, -8, 0)),  # 58
    Part.LineSegment(App.Vector(6, -8, 0), App.Vector(6.8, -8, 0)),  # 59
    Part.LineSegment(App.Vector(8.8, -8, 0), App.Vector(8.8, -7.2, 0)),  # 60
    Part.LineSegment(App.Vector(8.8, -7.2, 0), App.Vector(8.6, -7, 0)),  # 61
    Part.LineSegment(App.Vector(8.6, -7, 0), App.Vector(8.2, -7, 0)),  # 62
    Part.LineSegment(App.Vector(8.2, -7, 0), App.Vector(8, -7.2, 0)),  # 63
    Part.LineSegment(App.Vector(8, -7.2, 0), App.Vector(8, -8, 0)),  # 64
    Part.LineSegment(App.Vector(8, -8, 0), App.Vector(8.8, -8, 0)),  # 65
    Part.LineSegment(App.Vector(10.8, -8, 0), App.Vector(10.8, -7.2, 0)),  # 66
    Part.LineSegment(App.Vector(10.8, -7.2, 0), App.Vector(10.6, -7, 0)),  # 67
    Part.LineSegment(App.Vector(10.6, -7, 0), App.Vector(10.2, -7, 0)),  # 68
    Part.LineSegment(App.Vector(10.2, -7, 0), App.Vector(10, -7.2, 0)),  # 69
    Part.LineSegment(App.Vector(10, -7.2, 0), App.Vector(10, -8, 0)),  # 70
    Part.LineSegment(App.Vector(10, -8, 0), App.Vector(10.8, -8, 0)),  # 71
], False)
sketch5.addConstraint([
    Sketcher.Constraint("Coincident", 0, 2, 1, 1),
    Sketcher.Constraint("Coincident", 1, 2, 2, 1),
    Sketcher.Constraint("Coincident", 2, 2, 3, 1),
    Sketcher.Constraint("Coincident", 3, 2, 4, 1),
    Sketcher.Constraint("Coincident", 4, 2, 5, 1),
    Sketcher.Constraint("Coincident", 5, 2, 0, 1),
    Sketcher.Constraint("Coincident", 6, 2, 7, 1),
    Sketcher.Constraint("Coincident", 7, 2, 8, 1),
    Sketcher.Constraint("Coincident", 8, 2, 9, 1),
    Sketcher.Constraint("Coincident", 9, 2, 10, 1),
    Sketcher.Constraint("Coincident", 10, 2, 11, 1),
    Sketcher.Constraint("Coincident", 11, 2, 6, 1),
    Sketcher.Constraint("Coincident", 12, 2, 13, 1),
    Sketcher.Constraint("Coincident", 13, 2, 14, 1),
    Sketcher.Constraint("Coincident", 14, 2, 15, 1),
    Sketcher.Constraint("Coincident", 15, 2, 16, 1),
    Sketcher.Constraint("Coincident", 16, 2, 17, 1),
    Sketcher.Constraint("Coincident", 17, 2, 12, 1),
    Sketcher.Constraint("Coincident", 18, 2, 19, 1),
    Sketcher.Constraint("Coincident", 19, 2, 20, 1),
    Sketcher.Constraint("Coincident", 20, 2, 21, 1),
    Sketcher.Constraint("Coincident", 21, 2, 22, 1),
    Sketcher.Constraint("Coincident", 22, 2, 23, 1),
    Sketcher.Constraint("Coincident", 23, 2, 18, 1),
    Sketcher.Constraint("Coincident", 24, 2, 25, 1),
    Sketcher.Constraint("Coincident", 25, 2, 26, 1),
    Sketcher.Constraint("Coincident", 26, 2, 27, 1),
    Sketcher.Constraint("Coincident", 27, 2, 28, 1),
    Sketcher.Constraint("Coincident", 28, 2, 29, 1),
    Sketcher.Constraint("Coincident", 29, 2, 24, 1),
    Sketcher.Constraint("Coincident", 30, 2, 31, 1),
    Sketcher.Constraint("Coincident", 31, 2, 32, 1),
    Sketcher.Constraint("Coincident", 32, 2, 33, 1),
    Sketcher.Constraint("Coincident", 33, 2, 34, 1),
    Sketcher.Constraint("Coincident", 34, 2, 35, 1),
    Sketcher.Constraint("Coincident", 35, 2, 30, 1),
    Sketcher.Constraint("Coincident", 36, 2, 37, 1),
    Sketcher.Constraint("Coincident", 37, 2, 38, 1),
    Sketcher.Constraint("Coincident", 38, 2, 39, 1),
    Sketcher.Constraint("Coincident", 39, 2, 40, 1),
    Sketcher.Constraint("Coincident", 40, 2, 41, 1),
    Sketcher.Constraint("Coincident", 41, 2, 36, 1),
    Sketcher.Constraint("Coincident", 42, 2, 43, 1),
    Sketcher.Constraint("Coincident", 43, 2, 44, 1),
    Sketcher.Constraint("Coincident", 44, 2, 45, 1),
    Sketcher.Constraint("Coincident", 45, 2, 46, 1),
    Sketcher.Constraint("Coincident", 46, 2, 47, 1),
    Sketcher.Constraint("Coincident", 47, 2, 42, 1),
    Sketcher.Constraint("Coincident", 48, 2, 49, 1),
    Sketcher.Constraint("Coincident", 49, 2, 50, 1),
    Sketcher.Constraint("Coincident", 50, 2, 51, 1),
    Sketcher.Constraint("Coincident", 51, 2, 52, 1),
    Sketcher.Constraint("Coincident", 52, 2, 53, 1),
    Sketcher.Constraint("Coincident", 53, 2, 48, 1),
    Sketcher.Constraint("Coincident", 54, 2, 55, 1),
    Sketcher.Constraint("Coincident", 55, 2, 56, 1),
    Sketcher.Constraint("Coincident", 56, 2, 57, 1),
    Sketcher.Constraint("Coincident", 57, 2, 58, 1),
    Sketcher.Constraint("Coincident", 58, 2, 59, 1),
    Sketcher.Constraint("Coincident", 59, 2, 54, 1),
    Sketcher.Constraint("Coincident", 60, 2, 61, 1),
    Sketcher.Constraint("Coincident", 61, 2, 62, 1),
    Sketcher.Constraint("Coincident", 62, 2, 63, 1),
    Sketcher.Constraint("Coincident", 63, 2, 64, 1),
    Sketcher.Constraint("Coincident", 64, 2, 65, 1),
    Sketcher.Constraint("Coincident", 65, 2, 60, 1),
    Sketcher.Constraint("Coincident", 66, 2, 67, 1),
    Sketcher.Constraint("Coincident", 67, 2, 68, 1),
    Sketcher.Constraint("Coincident", 68, 2, 69, 1),
    Sketcher.Constraint("Coincident", 69, 2, 70, 1),
    Sketcher.Constraint("Coincident", 70, 2, 71, 1),
    Sketcher.Constraint("Coincident", 71, 2, 66, 1),
    Sketcher.Constraint("Vertical", 0),
    Sketcher.Constraint("Horizontal", 2),
    Sketcher.Constraint("Vertical", 4),
    Sketcher.Constraint("Horizontal", 5),
    Sketcher.Constraint("Vertical", 6),
    Sketcher.Constraint("Horizontal", 8),
    Sketcher.Constraint("Vertical", 10),
    Sketcher.Constraint("Horizontal", 11),
    Sketcher.Constraint("Vertical", 12),
    Sketcher.Constraint("Horizontal", 14),
    Sketcher.Constraint("Vertical", 16),
    Sketcher.Constraint("Horizontal", 17),
    Sketcher.Constraint("Vertical", 18),
    Sketcher.Constraint("Horizontal", 20),
    Sketcher.Constraint("Vertical", 22),
    Sketcher.Constraint("Horizontal", 23),
    Sketcher.Constraint("Vertical", 24),
    Sketcher.Constraint("Horizontal", 26),
    Sketcher.Constraint("Vertical", 28),
    Sketcher.Constraint("Horizontal", 29),
    Sketcher.Constraint("Vertical", 30),
    Sketcher.Constraint("Horizontal", 32),
    Sketcher.Constraint("Vertical", 34),
    Sketcher.Constraint("Horizontal", 35),
    Sketcher.Constraint("Vertical", 36),
    Sketcher.Constraint("Horizontal", 38),
    Sketcher.Constraint("Vertical", 40),
    Sketcher.Constraint("Horizontal", 41),
    Sketcher.Constraint("Vertical", 42),
    Sketcher.Constraint("Horizontal", 44),
    Sketcher.Constraint("Vertical", 46),
    Sketcher.Constraint("Horizontal", 47),
    Sketcher.Constraint("Vertical", 48),
    Sketcher.Constraint("Horizontal", 50),
    Sketcher.Constraint("Vertical", 52),
    Sketcher.Constraint("Horizontal", 53),
    Sketcher.Constraint("Vertical", 54),
    Sketcher.Constraint("Horizontal", 56),
    Sketcher.Constraint("Vertical", 58),
    Sketcher.Constraint("Horizontal", 59),
    Sketcher.Constraint("Vertical", 60),
    Sketcher.Constraint("Horizontal", 62),
    Sketcher.Constraint("Vertical", 64),
    Sketcher.Constraint("Horizontal", 65),
    Sketcher.Constraint("Vertical", 66),
    Sketcher.Constraint("Horizontal", 68),
    Sketcher.Constraint("Vertical", 70),
    Sketcher.Constraint("Horizontal", 71),
    Sketcher.Constraint("PointOnObject", 39, 2, -2),
    Sketcher.Constraint("Perpendicular", 1, 3),
    Sketcher.Constraint("Perpendicular", 3, 7),
    Sketcher.Constraint("Perpendicular", 7, 9),
    Sketcher.Constraint("Perpendicular", 9, 13),
    Sketcher.Constraint("Perpendicular", 13, 15),
    Sketcher.Constraint("Perpendicular", 15, 19),
    Sketcher.Constraint("Perpendicular", 19, 21),
    Sketcher.Constraint("Perpendicular", 21, 25),
    Sketcher.Constraint("Perpendicular", 25, 27),
    Sketcher.Constraint("Perpendicular", 27, 31),
    Sketcher.Constraint("Perpendicular", 31, 33),
    Sketcher.Constraint("Perpendicular", 33, 37),
    Sketcher.Constraint("Perpendicular", 37, 39),
    Sketcher.Constraint("Perpendicular", 39, 43),
    Sketcher.Constraint("Perpendicular", 43, 45),
    Sketcher.Constraint("Perpendicular", 45, 49),
    Sketcher.Constraint("Perpendicular", 49, 51),
    Sketcher.Constraint("Perpendicular", 51, 55),
    Sketcher.Constraint("Perpendicular", 55, 57),
    Sketcher.Constraint("Perpendicular", 57, 61),
    Sketcher.Constraint("Perpendicular", 61, 63),
    Sketcher.Constraint("Perpendicular", 63, 67),
    Sketcher.Constraint("Perpendicular", 67, 69),
    Sketcher.Constraint("Horizontal", 0, 2, 3, 2),
    Sketcher.Constraint("Horizontal", 3, 2, 6, 2),
    Sketcher.Constraint("Horizontal", 2, 2, 7, 2),
    Sketcher.Constraint("Horizontal", 6, 2, 9, 2),
    Sketcher.Constraint("Horizontal", 5, 2, 10, 2),
    Sketcher.Constraint("Horizontal", 9, 2, 12, 2),
    Sketcher.Constraint("Horizontal", 8, 2, 13, 2),
    Sketcher.Constraint("Horizontal", 12, 2, 15, 2),
    Sketcher.Constraint("Horizontal", 11, 2, 16, 2),
    Sketcher.Constraint("Horizontal", 15, 2, 18, 2),
    Sketcher.Constraint("Horizontal", 14, 2, 19, 2),
    Sketcher.Constraint("Horizontal", 18, 2, 21, 2),
    Sketcher.Constraint("Horizontal", 17, 2, 22, 2),
    Sketcher.Constraint("Horizontal", 21, 2, 24, 2),
    Sketcher.Constraint("Horizontal", 20, 2, 25, 2),
    Sketcher.Constraint("Horizontal", 24, 2, 27, 2),
    Sketcher.Constraint("Horizontal", 23, 2, 28, 2),
    Sketcher.Constraint("Horizontal", 27, 2, 30, 2),
    Sketcher.Constraint("Horizontal", 26, 2, 31, 2),
    Sketcher.Constraint("Horizontal", 30, 2, 33, 2),
    Sketcher.Constraint("Horizontal", 29, 2, 34, 2),
    Sketcher.Constraint("Horizontal", 36, 2, 39, 2),
    Sketcher.Constraint("Horizontal", 39, 2, 42, 2),
    Sketcher.Constraint("Horizontal", 38, 2, 43, 2),
    Sketcher.Constraint("Horizontal", 42, 2, 45, 2),
    Sketcher.Constraint("Horizontal", 41, 2, 46, 2),
    Sketcher.Constraint("Horizontal", 45, 2, 48, 2),
    Sketcher.Constraint("Horizontal", 44, 2, 49, 2),
    Sketcher.Constraint("Horizontal", 48, 2, 51, 2),
    Sketcher.Constraint("Horizontal", 47, 2, 52, 2),
    Sketcher.Constraint("Horizontal", 51, 2, 54, 2),
    Sketcher.Constraint("Horizontal", 50, 2, 55, 2),
    Sketcher.Constraint("Horizontal", 54, 2, 57, 2),
    Sketcher.Constraint("Horizontal", 53, 2, 58, 2),
    Sketcher.Constraint("Horizontal", 57, 2, 60, 2),
    Sketcher.Constraint("Horizontal", 56, 2, 61, 2),
    Sketcher.Constraint("Horizontal", 60, 2, 63, 2),
    Sketcher.Constraint("Horizontal", 59, 2, 64, 2),
    Sketcher.Constraint("Horizontal", 63, 2, 66, 2),
    Sketcher.Constraint("Horizontal", 62, 2, 67, 2),
    Sketcher.Constraint("Horizontal", 66, 2, 69, 2),
    Sketcher.Constraint("Horizontal", 65, 2, 70, 2),
    Sketcher.Constraint("Equal", 2, 8),
    Sketcher.Constraint("Equal", 8, 14),
    Sketcher.Constraint("Equal", 14, 20),
    Sketcher.Constraint("Equal", 20, 26),
    Sketcher.Constraint("Equal", 26, 32),
    Sketcher.Constraint("Equal", 32, 38),
    Sketcher.Constraint("Equal", 35, 41),
    Sketcher.Constraint("Equal", 38, 44),
    Sketcher.Constraint("Equal", 44, 50),
    Sketcher.Constraint("Equal", 50, 56),
    Sketcher.Constraint("Equal", 56, 62),
    Sketcher.Constraint("Equal", 62, 68),
    Sketcher.Constraint("Equal", 71, 0),
    Sketcher.Constraint("Equal", 34, 36),
    Sketcher.Constraint("Equal", 1, 3),
    Sketcher.Constraint("DistanceX", 2, 2, 2, 1, 0.4),
    Sketcher.Constraint("DistanceX", 5, 1, 5, 2, 0.8),
    Sketcher.Constraint("DistanceX", -1, 1, 0, 2, 35.0),
    Sketcher.Constraint("DistanceY", 1, 2, -1, 1, 16.0),
    Sketcher.Constraint("DistanceX", -1, 1, 6, 2, 33.0),
    Sketcher.Constraint("DistanceX", -1, 1, 12, 2, 31.0),
    Sketcher.Constraint("DistanceX", -1, 1, 18, 2, 29.0),
    Sketcher.Constraint("DistanceX", -1, 1, 24, 2, 27.0),
    Sketcher.Constraint("DistanceX", -1, 1, 30, 2, 25.0),
    Sketcher.Constraint("DistanceY", 37, 2, -1, 1, 7.0),
    Sketcher.Constraint("DistanceX", -1, 1, 45, 2, 2.0),
    Sketcher.Constraint("DistanceX", -1, 1, 51, 2, 4.0),
    Sketcher.Constraint("DistanceX", -1, 1, 57, 2, 6.0),
    Sketcher.Constraint("DistanceX", -1, 1, 63, 2, 8.0),
    Sketcher.Constraint("DistanceX", -1, 1, 69, 2, 10.0),
])
sketch5.setExpression("Constraints[201]", "Params.sketch5_width")
sketch5.setExpression("Constraints[202]", "Params.sketch5_width2")
pad3 = body.newObject("PartDesign::Pad", "Pad002")
pad3.Profile = sketch5
pad3.setExpression("Length", "Params.pad3_length")
pad3.Reversed = True

# Sketch on XY plane
sketch6 = body.newObject("Sketcher::SketchObject", "Sketch005")
sketch6.AttachmentSupport = (doc.getObject("XY_Plane"), [""])
sketch6.MapMode = "FlatFace"
sketch6.addGeometry([
    Part.LineSegment(App.Vector(0, 20, 0), App.Vector(0, 1, 0)),
    Part.LineSegment(App.Vector(0, 1, 0), App.Vector(35, 1, 0)),
    Part.LineSegment(App.Vector(35, 1, 0), App.Vector(35, 20, 0)),
    Part.LineSegment(App.Vector(35, 20, 0), App.Vector(0, 20, 0)),
], False)
sketch6.addConstraint([
    Sketcher.Constraint("Coincident", 0, 2, 1, 1),
    Sketcher.Constraint("Coincident", 1, 2, 2, 1),
    Sketcher.Constraint("Coincident", 2, 2, 3, 1),
    Sketcher.Constraint("Coincident", 3, 2, 0, 1),
    Sketcher.Constraint("Vertical", 0),
    Sketcher.Constraint("Horizontal", 1),
    Sketcher.Constraint("Vertical", 2),
    Sketcher.Constraint("Horizontal", 3),
    Sketcher.Constraint("PointOnObject", 0, 2, -2),
    Sketcher.Constraint("DistanceX", 1, 1, 1, 2, 35.0),
    Sketcher.Constraint("DistanceY", 0, 2, 0, 1, 19.0),
    Sketcher.Constraint("DistanceY", -1, 1, 0, 2, 1.0),
])
sketch6.setExpression("Constraints[9]", "Params.sketch6_width")
sketch6.setExpression("Constraints[10]", "Params.sketch6_height")
pad4 = body.newObject("PartDesign::Pad", "Pad003")
pad4.Profile = sketch6
pad4.setExpression("Length", "Params.pad4_length")

# Sketch on XY plane
sketch7 = body.newObject("Sketcher::SketchObject", "Sketch006")
sketch7.AttachmentSupport = (doc.getObject("XY_Plane"), [""])
sketch7.MapMode = "FlatFace"
sketch7.AttachmentOffset = App.Placement(App.Vector(0, 0, 12.5), App.Rotation())
sketch7.addGeometry([
    Part.LineSegment(App.Vector(0, 20, 0), App.Vector(0, -26, 0)),
    Part.LineSegment(App.Vector(0, -26, 0), App.Vector(35, -26, 0)),
    Part.LineSegment(App.Vector(35, -26, 0), App.Vector(35, 20, 0)),
    Part.LineSegment(App.Vector(35, 20, 0), App.Vector(0, 20, 0)),
], False)
sketch7.addConstraint([
    Sketcher.Constraint("Coincident", 0, 2, 1, 1),
    Sketcher.Constraint("Coincident", 1, 2, 2, 1),
    Sketcher.Constraint("Coincident", 2, 2, 3, 1),
    Sketcher.Constraint("Coincident", 3, 2, 0, 1),
    Sketcher.Constraint("Vertical", 0),
    Sketcher.Constraint("Horizontal", 1),
    Sketcher.Constraint("Vertical", 2),
    Sketcher.Constraint("Horizontal", 3),
    Sketcher.Constraint("PointOnObject", 0, 2, -2),
    Sketcher.Constraint("DistanceX", 1, 1, 1, 2, 35.0),
    Sketcher.Constraint("DistanceY", 0, 2, 0, 1, 46.0),
    Sketcher.Constraint("DistanceY", 0, 2, -1, 1, 26.0),
])
sketch7.setExpression("Constraints[9]", "Params.sketch7_width")
sketch7.setExpression("Constraints[10]", "Params.sketch7_height")
pad5 = body.newObject("PartDesign::Pad", "Pad004")
pad5.Profile = sketch7
pad5.setExpression("Length", "Params.pad5_length")

# Sketch on XY plane
sketch8 = body.newObject("Sketcher::SketchObject", "Sketch007")
sketch8.AttachmentSupport = (doc.getObject("XY_Plane"), [""])
sketch8.MapMode = "FlatFace"
sketch8.AttachmentOffset = App.Placement(App.Vector(0, 0, 17.5), App.Rotation())
sketch8.addGeometry([
    Part.Circle(App.Vector(10, -2.5, 0), App.Vector(0, 0, 1), 1.7),
    Part.Circle(App.Vector(25, -2.5, 0), App.Vector(0, 0, 1), 1.7),
    Part.Circle(App.Vector(25, -22.5, 0), App.Vector(0, 0, 1), 1.7),
    Part.Circle(App.Vector(10, -22.5, 0), App.Vector(0, 0, 1), 1.7),
], False)
sketch8.addConstraint([
    Sketcher.Constraint("Equal", 0, 1),
    Sketcher.Constraint("Equal", 1, 2),
    Sketcher.Constraint("Equal", 2, 3),
    Sketcher.Constraint("Horizontal", 0, 3, 1, 3),
    Sketcher.Constraint("Horizontal", 2, 3, 3, 3),
    Sketcher.Constraint("Vertical", 1, 3, 2, 3),
    Sketcher.Constraint("Vertical", 0, 3, 3, 3),
    Sketcher.Constraint("Diameter", 0, 3.4),
    Sketcher.Constraint("DistanceX", -1, 1, 0, 3, 10.0),
    Sketcher.Constraint("DistanceX", -1, 1, 1, 3, 25.0),
    Sketcher.Constraint("DistanceY", 2, 3, 1, 3, 20.0),
    Sketcher.Constraint("DistanceY", 0, 3, -1, 1, 2.5),
])
sketch8.setExpression("Constraints[7]", "Params.sketch8_diameter")
pocket3 = body.newObject("PartDesign::Pocket", "Pocket002")
pocket3.Profile = sketch8
pocket3.setExpression("Length", "Params.pocket3_length")

doc.recompute()
